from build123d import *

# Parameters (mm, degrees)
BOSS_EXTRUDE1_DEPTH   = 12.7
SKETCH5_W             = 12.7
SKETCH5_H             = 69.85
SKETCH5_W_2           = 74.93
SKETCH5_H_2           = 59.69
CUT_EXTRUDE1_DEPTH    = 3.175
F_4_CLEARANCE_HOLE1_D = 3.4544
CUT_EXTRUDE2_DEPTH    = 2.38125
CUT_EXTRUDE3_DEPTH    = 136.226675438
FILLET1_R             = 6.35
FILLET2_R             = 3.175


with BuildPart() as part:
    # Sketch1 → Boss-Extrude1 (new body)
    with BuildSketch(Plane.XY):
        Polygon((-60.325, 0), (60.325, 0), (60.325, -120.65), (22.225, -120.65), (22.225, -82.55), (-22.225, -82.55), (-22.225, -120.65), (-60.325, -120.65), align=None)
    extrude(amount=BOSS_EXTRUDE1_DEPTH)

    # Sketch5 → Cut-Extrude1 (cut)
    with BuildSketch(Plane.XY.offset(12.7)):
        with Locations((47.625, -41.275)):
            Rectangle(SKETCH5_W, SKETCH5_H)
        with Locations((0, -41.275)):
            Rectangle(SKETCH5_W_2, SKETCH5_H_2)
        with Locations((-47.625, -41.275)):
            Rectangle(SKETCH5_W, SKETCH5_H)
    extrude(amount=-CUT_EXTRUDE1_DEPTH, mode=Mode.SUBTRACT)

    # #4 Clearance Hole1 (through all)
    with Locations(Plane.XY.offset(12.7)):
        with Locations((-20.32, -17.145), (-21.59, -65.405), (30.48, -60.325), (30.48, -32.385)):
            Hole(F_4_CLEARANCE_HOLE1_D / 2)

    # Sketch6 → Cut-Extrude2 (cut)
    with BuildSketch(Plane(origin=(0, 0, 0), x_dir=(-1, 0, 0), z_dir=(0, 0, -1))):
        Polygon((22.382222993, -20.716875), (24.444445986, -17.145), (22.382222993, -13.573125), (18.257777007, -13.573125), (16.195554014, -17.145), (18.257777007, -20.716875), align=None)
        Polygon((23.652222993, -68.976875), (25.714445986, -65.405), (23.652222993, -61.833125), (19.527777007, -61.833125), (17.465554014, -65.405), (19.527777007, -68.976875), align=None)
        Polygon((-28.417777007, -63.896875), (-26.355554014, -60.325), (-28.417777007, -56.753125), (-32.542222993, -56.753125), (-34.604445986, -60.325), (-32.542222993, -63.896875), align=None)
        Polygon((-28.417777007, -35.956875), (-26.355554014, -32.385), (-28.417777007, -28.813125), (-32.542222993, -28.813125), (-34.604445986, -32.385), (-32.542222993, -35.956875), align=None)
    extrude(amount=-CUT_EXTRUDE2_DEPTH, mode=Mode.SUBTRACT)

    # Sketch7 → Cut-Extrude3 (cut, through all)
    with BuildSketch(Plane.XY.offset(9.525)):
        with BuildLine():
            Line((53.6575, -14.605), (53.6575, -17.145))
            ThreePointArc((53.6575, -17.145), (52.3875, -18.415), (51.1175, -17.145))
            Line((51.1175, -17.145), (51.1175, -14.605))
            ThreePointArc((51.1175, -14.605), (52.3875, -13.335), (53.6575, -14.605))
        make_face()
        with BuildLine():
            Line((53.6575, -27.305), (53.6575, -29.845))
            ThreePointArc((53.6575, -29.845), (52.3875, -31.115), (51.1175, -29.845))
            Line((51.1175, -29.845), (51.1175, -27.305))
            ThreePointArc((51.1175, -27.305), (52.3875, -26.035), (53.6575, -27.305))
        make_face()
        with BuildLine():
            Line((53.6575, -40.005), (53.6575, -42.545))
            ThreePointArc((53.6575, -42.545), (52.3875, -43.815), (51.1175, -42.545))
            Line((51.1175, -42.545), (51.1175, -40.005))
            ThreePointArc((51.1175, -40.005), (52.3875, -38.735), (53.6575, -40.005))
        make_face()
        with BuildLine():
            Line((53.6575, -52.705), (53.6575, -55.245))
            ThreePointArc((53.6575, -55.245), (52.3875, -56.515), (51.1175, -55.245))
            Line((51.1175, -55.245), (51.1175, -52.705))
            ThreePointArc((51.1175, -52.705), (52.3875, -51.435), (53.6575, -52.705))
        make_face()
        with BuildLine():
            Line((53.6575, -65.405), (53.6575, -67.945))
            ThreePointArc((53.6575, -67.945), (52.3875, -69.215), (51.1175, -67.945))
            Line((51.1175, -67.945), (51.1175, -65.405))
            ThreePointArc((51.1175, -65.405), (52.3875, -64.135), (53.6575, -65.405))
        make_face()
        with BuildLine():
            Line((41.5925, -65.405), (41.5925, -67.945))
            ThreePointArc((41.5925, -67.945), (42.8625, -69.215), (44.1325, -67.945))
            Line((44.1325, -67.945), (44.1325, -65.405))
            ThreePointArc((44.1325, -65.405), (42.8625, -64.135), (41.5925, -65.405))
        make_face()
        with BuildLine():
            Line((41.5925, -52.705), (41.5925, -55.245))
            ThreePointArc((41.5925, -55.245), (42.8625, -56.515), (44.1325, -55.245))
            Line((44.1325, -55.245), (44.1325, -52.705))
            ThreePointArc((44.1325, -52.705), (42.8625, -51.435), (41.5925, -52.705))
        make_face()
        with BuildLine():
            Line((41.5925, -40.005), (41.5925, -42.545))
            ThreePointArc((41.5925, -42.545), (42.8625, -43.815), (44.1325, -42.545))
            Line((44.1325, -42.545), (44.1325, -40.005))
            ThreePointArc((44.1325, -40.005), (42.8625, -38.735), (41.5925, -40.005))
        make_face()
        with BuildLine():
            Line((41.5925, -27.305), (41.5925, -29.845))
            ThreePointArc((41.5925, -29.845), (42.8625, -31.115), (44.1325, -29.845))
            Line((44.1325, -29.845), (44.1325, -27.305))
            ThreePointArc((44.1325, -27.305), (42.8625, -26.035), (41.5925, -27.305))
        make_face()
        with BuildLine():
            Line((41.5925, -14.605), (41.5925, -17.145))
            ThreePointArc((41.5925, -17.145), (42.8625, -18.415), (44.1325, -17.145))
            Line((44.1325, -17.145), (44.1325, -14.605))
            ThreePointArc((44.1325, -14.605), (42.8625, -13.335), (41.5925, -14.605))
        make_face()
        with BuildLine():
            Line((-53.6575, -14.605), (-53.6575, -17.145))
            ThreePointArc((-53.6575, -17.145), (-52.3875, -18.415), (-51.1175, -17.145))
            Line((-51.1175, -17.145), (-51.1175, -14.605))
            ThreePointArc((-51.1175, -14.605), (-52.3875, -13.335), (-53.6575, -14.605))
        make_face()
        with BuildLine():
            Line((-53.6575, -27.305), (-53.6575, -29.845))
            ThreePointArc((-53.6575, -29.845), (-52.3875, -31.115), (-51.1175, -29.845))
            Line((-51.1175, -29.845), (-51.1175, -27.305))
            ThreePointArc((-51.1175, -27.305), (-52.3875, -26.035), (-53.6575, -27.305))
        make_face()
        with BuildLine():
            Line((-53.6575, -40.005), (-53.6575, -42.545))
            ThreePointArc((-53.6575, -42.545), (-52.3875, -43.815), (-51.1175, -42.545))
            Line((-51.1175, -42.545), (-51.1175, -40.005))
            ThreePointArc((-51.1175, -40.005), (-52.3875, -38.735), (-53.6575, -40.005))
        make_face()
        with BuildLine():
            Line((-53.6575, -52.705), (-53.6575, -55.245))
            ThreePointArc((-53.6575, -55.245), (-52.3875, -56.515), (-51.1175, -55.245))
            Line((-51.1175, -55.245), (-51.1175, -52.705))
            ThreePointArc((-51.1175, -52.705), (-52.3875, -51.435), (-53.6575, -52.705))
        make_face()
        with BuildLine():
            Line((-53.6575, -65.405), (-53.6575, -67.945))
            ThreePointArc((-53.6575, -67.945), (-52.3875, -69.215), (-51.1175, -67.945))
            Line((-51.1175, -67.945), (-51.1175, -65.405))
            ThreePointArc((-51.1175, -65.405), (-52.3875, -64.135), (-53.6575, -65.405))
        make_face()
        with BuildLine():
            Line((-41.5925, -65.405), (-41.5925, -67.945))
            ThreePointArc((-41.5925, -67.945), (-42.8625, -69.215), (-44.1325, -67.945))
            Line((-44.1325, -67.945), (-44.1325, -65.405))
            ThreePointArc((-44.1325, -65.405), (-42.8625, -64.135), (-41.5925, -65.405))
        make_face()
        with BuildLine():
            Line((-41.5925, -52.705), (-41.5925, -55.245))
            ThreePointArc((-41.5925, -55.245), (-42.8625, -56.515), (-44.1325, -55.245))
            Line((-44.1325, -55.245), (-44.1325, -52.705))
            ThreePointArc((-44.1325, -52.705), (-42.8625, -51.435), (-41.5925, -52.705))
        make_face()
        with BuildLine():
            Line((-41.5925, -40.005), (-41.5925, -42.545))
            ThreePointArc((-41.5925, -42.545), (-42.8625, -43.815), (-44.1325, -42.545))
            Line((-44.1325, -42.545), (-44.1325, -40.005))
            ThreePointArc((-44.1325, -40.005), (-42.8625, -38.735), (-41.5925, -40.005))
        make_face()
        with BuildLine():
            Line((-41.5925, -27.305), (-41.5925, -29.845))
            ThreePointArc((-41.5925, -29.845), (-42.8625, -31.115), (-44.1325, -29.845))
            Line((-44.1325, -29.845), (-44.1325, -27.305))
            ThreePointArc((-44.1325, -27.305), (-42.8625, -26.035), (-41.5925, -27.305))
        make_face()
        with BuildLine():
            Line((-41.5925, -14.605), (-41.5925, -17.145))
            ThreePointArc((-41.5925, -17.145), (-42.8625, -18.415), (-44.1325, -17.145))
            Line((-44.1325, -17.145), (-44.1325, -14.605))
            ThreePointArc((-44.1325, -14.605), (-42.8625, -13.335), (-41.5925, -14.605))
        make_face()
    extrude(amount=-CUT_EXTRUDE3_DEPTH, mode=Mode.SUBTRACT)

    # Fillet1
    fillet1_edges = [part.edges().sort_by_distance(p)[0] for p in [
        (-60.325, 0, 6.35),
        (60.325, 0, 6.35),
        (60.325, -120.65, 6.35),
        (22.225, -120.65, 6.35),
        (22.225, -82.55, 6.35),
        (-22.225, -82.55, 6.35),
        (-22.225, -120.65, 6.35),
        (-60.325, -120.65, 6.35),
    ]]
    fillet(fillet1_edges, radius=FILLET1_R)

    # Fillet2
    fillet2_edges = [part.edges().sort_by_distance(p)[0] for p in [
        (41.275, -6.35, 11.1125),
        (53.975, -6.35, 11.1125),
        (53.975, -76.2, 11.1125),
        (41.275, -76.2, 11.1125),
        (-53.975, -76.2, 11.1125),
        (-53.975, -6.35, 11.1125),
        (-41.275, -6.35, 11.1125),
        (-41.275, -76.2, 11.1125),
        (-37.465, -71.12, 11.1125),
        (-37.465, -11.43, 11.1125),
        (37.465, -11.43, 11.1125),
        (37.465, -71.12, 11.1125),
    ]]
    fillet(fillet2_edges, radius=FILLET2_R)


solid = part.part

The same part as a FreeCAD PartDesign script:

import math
import FreeCAD as App
import Part
import Sketcher

V = App.Vector
Q = App.Units.Quantity


def edges_at(feature, points):
    """Names of the edges that pass closest to the given points."""
    edges = feature.Shape.Edges
    near = lambda p: min(range(len(edges)), key=lambda i: edges[i].distToShape(Part.Vertex(*p))[0])
    return sorted({f"Edge{near(p) + 1}" for p in points})

doc = App.newDocument("Part")
body = doc.addObject("PartDesign::Body", "Body")

sketch1 = body.newObject("Sketcher::SketchObject", "Sketch")
sketch1.AttachmentSupport = (doc.getObject("XY_Plane"), [""])
sketch1.MapMode = "FlatFace"
sketch1.addGeometry(Part.LineSegment(V(60, 0, 0), V(-60, 0, 0)), False)
sketch1.addGeometry(Part.LineSegment(V(-60, 0, 0), V(-60, -121, 0)), False)
sketch1.addGeometry(Part.LineSegment(V(-60, -121, 0), V(-22, -121, 0)), False)
sketch1.addGeometry(Part.LineSegment(V(-22, -121, 0), V(-22, -83, 0)), False)
sketch1.addGeometry(Part.LineSegment(V(-22, -83, 0), V(22, -83, 0)), False)
sketch1.addGeometry(Part.LineSegment(V(22, -83, 0), V(22, -121, 0)), False)
sketch1.addGeometry(Part.LineSegment(V(22, -121, 0), V(60, -121, 0)), False)
sketch1.addGeometry(Part.LineSegment(V(60, -121, 0), V(60, 0, 0)), False)
sketch1.addConstraint(Sketcher.Constraint("Coincident", 0, 2, 1, 1))
sketch1.addConstraint(Sketcher.Constraint("Coincident", 1, 2, 2, 1))
sketch1.addConstraint(Sketcher.Constraint("Coincident", 2, 2, 3, 1))
sketch1.addConstraint(Sketcher.Constraint("Coincident", 3, 2, 4, 1))
sketch1.addConstraint(Sketcher.Constraint("Coincident", 4, 2, 5, 1))
sketch1.addConstraint(Sketcher.Constraint("Coincident", 5, 2, 6, 1))
sketch1.addConstraint(Sketcher.Constraint("Coincident", 6, 2, 7, 1))
sketch1.addConstraint(Sketcher.Constraint("Coincident", 7, 2, 0, 1))
sketch1.addConstraint(Sketcher.Constraint("Horizontal", 0))
sketch1.addConstraint(Sketcher.Constraint("Vertical", 1))
sketch1.addConstraint(Sketcher.Constraint("Horizontal", 2))
sketch1.addConstraint(Sketcher.Constraint("Vertical", 3))
sketch1.addConstraint(Sketcher.Constraint("Horizontal", 4))
sketch1.addConstraint(Sketcher.Constraint("Vertical", 5))
sketch1.addConstraint(Sketcher.Constraint("Horizontal", 6))
sketch1.addConstraint(Sketcher.Constraint("Vertical", 7))
sketch1.addConstraint(Sketcher.Constraint("Symmetric", 0, 2, 7, 2, -1, 1))
sketch1.addConstraint(Sketcher.Constraint("Symmetric", 2, 2, 5, 2, -2))
sketch1.addConstraint(Sketcher.Constraint("Equal", 0, 1))
sketch1.addConstraint(Sketcher.Constraint("Equal", 6, 3))
sketch1.addConstraint(Sketcher.Constraint("DistanceX", 2, 1, 2, 2, Q("1.5 in")))
sketch1.addConstraint(Sketcher.Constraint("DistanceX", 0, 2, 0, 1, Q("4.75 in")))
pad1 = body.newObject("PartDesign::Pad", "Pad")
pad1.Profile = sketch1
pad1.Length = Q("0.5 in")

sketch2 = body.newObject("Sketcher::SketchObject", "Sketch001")
sketch2.AttachmentSupport = (doc.getObject("XY_Plane"), [""])
sketch2.MapMode = "FlatFace"
sketch2.AttachmentOffset = App.Placement(V(0, 0, 0.5 * 25.4), App.Rotation())
sketch2.addGeometry(Part.LineSegment(V(41, -6, 0), V(41, -76, 0)), False)
sketch2.addGeometry(Part.LineSegment(V(41, -76, 0), V(54, -76, 0)), False)
sketch2.addGeometry(Part.LineSegment(V(54, -76, 0), V(54, -6, 0)), False)
sketch2.addGeometry(Part.LineSegment(V(54, -6, 0), V(41, -6, 0)), False)
sketch2.addGeometry(Part.LineSegment(V(-37, -11, 0), V(-37, -71, 0)), False)
sketch2.addGeometry(Part.LineSegment(V(-37, -71, 0), V(37, -71, 0)), False)
sketch2.addGeometry(Part.LineSegment(V(37, -71, 0), V(37, -11, 0)), False)
sketch2.addGeometry(Part.LineSegment(V(37, -11, 0), V(-37, -11, 0)), False)
sketch2.addGeometry(Part.LineSegment(V(-54, -6, 0), V(-54, -76, 0)), False)
sketch2.addGeometry(Part.LineSegment(V(-54, -76, 0), V(-41, -76, 0)), False)
sketch2.addGeometry(Part.LineSegment(V(-41, -76, 0), V(-41, -6, 0)), False)
sketch2.addGeometry(Part.LineSegment(V(-41, -6, 0), V(-54, -6, 0)), False)
sketch2.addConstraint(Sketcher.Constraint("Coincident", 0, 2, 1, 1))
sketch2.addConstraint(Sketcher.Constraint("Coincident", 1, 2, 2, 1))
sketch2.addConstraint(Sketcher.Constraint("Coincident", 2, 2, 3, 1))
sketch2.addConstraint(Sketcher.Constraint("Coincident", 3, 2, 0, 1))
sketch2.addConstraint(Sketcher.Constraint("Coincident", 4, 2, 5, 1))
sketch2.addConstraint(Sketcher.Constraint("Coincident", 5, 2, 6, 1))
sketch2.addConstraint(Sketcher.Constraint("Coincident", 6, 2, 7, 1))
sketch2.addConstraint(Sketcher.Constraint("Coincident", 7, 2, 4, 1))
sketch2.addConstraint(Sketcher.Constraint("Coincident", 8, 2, 9, 1))
sketch2.addConstraint(Sketcher.Constraint("Coincident", 9, 2, 10, 1))
sketch2.addConstraint(Sketcher.Constraint("Coincident", 10, 2, 11, 1))
sketch2.addConstraint(Sketcher.Constraint("Coincident", 11, 2, 8, 1))
sketch2.addConstraint(Sketcher.Constraint("Vertical", 0))
sketch2.addConstraint(Sketcher.Constraint("Horizontal", 1))
sketch2.addConstraint(Sketcher.Constraint("Vertical", 2))
sketch2.addConstraint(Sketcher.Constraint("Horizontal", 3))
sketch2.addConstraint(Sketcher.Constraint("Vertical", 4))
sketch2.addConstraint(Sketcher.Constraint("Horizontal", 5))
sketch2.addConstraint(Sketcher.Constraint("Vertical", 6))
sketch2.addConstraint(Sketcher.Constraint("Horizontal", 7))
sketch2.addConstraint(Sketcher.Constraint("Vertical", 8))
sketch2.addConstraint(Sketcher.Constraint("Horizontal", 9))
sketch2.addConstraint(Sketcher.Constraint("Vertical", 10))
sketch2.addConstraint(Sketcher.Constraint("Horizontal", 11))
sketch2.addConstraint(Sketcher.Constraint("Symmetric", 1, 2, 8, 2, -2))
sketch2.addConstraint(Sketcher.Constraint("Symmetric", 3, 2, 10, 2, -2))
sketch2.addConstraint(Sketcher.Constraint("DistanceX", 1, 1, 1, 2, Q("0.5 in")))
sketch2.addConstraint(Sketcher.Constraint("DistanceY", 0, 2, -1, 1, Q("3 in")))
sketch2.addConstraint(Sketcher.Constraint("DistanceX", 5, 1, 5, 2, Q("2.95 in")))
sketch2.addConstraint(Sketcher.Constraint("DistanceY", 0, 2, 0, 1, Q("2.75 in")))
sketch2.addConstraint(Sketcher.Constraint("DistanceY", 4, 2, 4, 1, Q("2.35 in")))
sketch2.addConstraint(Sketcher.Constraint("DistanceY", 4, 2, -1, 1, Q("2.8 in")))
sketch2.addConstraint(Sketcher.Constraint("DistanceX", 4, 2, 0, 2, Q("3.1 in")))
sketch2.addConstraint(Sketcher.Constraint("DistanceX", 8, 2, 5, 2, Q("3.6 in")))
pocket1 = body.newObject("PartDesign::Pocket", "Pocket")
pocket1.Profile = sketch2
pocket1.Length = Q("0.125 in")

sketch3 = body.newObject("Sketcher::SketchObject", "Sketch002")
sketch3.AttachmentSupport = (doc.getObject("XY_Plane"), [""])
sketch3.MapMode = "FlatFace"
sketch3.AttachmentOffset = App.Placement(V(0, 0, 0.5 * 25.4), App.Rotation())
sketch3.addGeometry(Part.Circle(V(-20.3, -17.1, 0), V(0, 0, 1), 1.7), False)
sketch3.addGeometry(Part.Circle(V(-21.6, -65.4, 0), V(0, 0, 1), 1.7), False)
sketch3.addGeometry(Part.Circle(V(30.5, -60.3, 0), V(0, 0, 1), 1.7), False)
sketch3.addGeometry(Part.Circle(V(30.5, -32.4, 0), V(0, 0, 1), 1.7), False)
sketch3.addConstraint(Sketcher.Constraint("Equal", 0, 1))
sketch3.addConstraint(Sketcher.Constraint("Equal", 1, 2))
sketch3.addConstraint(Sketcher.Constraint("Equal", 2, 3))
sketch3.addConstraint(Sketcher.Constraint("Vertical", 2, 3, 3, 3))
sketch3.addConstraint(Sketcher.Constraint("Diameter", 0, Q("0.136 in")))
sketch3.addConstraint(Sketcher.Constraint("DistanceX", 0, 3, 2, 3, Q("2 in")))
sketch3.addConstraint(Sketcher.Constraint("DistanceX", 0, 3, -1, 1, Q("0.8 in")))
sketch3.addConstraint(Sketcher.Constraint("DistanceY", 1, 3, 0, 3, Q("1.9 in")))
sketch3.addConstraint(Sketcher.Constraint("DistanceY", 1, 3, 2, 3, Q("0.2 in")))
sketch3.addConstraint(Sketcher.Constraint("DistanceY", 2, 3, 3, 3, Q("1.1 in")))
sketch3.addConstraint(Sketcher.Constraint("DistanceX", 1, 3, -1, 1, Q("0.85 in")))
sketch3.addConstraint(Sketcher.Constraint("DistanceY", 0, 3, -1, 1, Q("0.675 in")))
doc.recompute()
hole = body.newObject("PartDesign::Hole", "Hole")
hole.Profile = sketch3
hole.ThreadType = "None"
hole.Diameter = Q("0.136 in")
hole.DepthType = "ThroughAll"

sketch4 = body.newObject("Sketcher::SketchObject", "Sketch003")
sketch4.AttachmentSupport = (doc.getObject("XY_Plane"), [""])
sketch4.MapMode = "FlatFace"
sketch4.addGeometry(Part.LineSegment(V(-22.4, -20.7, 0), V(-24.4, -17.1, 0)), False)
sketch4.addGeometry(Part.LineSegment(V(-24.4, -17.1, 0), V(-22.4, -13.6, 0)), False)
sketch4.addGeometry(Part.LineSegment(V(-22.4, -13.6, 0), V(-18.3, -13.6, 0)), False)
sketch4.addGeometry(Part.LineSegment(V(-18.3, -13.6, 0), V(-16.2, -17.1, 0)), False)
sketch4.addGeometry(Part.LineSegment(V(-16.2, -17.1, 0), V(-18.3, -20.7, 0)), False)
sketch4.addGeometry(Part.LineSegment(V(-18.3, -20.7, 0), V(-22.4, -20.7, 0)), False)
sketch4.addGeometry(Part.LineSegment(V(-23.7, -69, 0), V(-25.7, -65.4, 0)), False)
sketch4.addGeometry(Part.LineSegment(V(-25.7, -65.4, 0), V(-23.7, -61.8, 0)), False)
sketch4.addGeometry(Part.LineSegment(V(-23.7, -61.8, 0), V(-19.5, -61.8, 0)), False)
sketch4.addGeometry(Part.LineSegment(V(-19.5, -61.8, 0), V(-17.5, -65.4, 0)), False)
sketch4.addGeometry(Part.LineSegment(V(-17.5, -65.4, 0), V(-19.5, -69, 0)), False)
sketch4.addGeometry(Part.LineSegment(V(-19.5, -69, 0), V(-23.7, -69, 0)), False)
sketch4.addGeometry(Part.LineSegment(V(28.4, -63.9, 0), V(26.4, -60.3, 0)), False)
sketch4.addGeometry(Part.LineSegment(V(26.4, -60.3, 0), V(28.4, -56.8, 0)), False)
sketch4.addGeometry(Part.LineSegment(V(28.4, -56.8, 0), V(32.5, -56.8, 0)), False)
sketch4.addGeometry(Part.LineSegment(V(32.5, -56.8, 0), V(34.6, -60.3, 0)), False)
sketch4.addGeometry(Part.LineSegment(V(34.6, -60.3, 0), V(32.5, -63.9, 0)), False)
sketch4.addGeometry(Part.LineSegment(V(32.5, -63.9, 0), V(28.4, -63.9, 0)), False)
sketch4.addGeometry(Part.LineSegment(V(28.4, -36, 0), V(26.4, -32.4, 0)), False)
sketch4.addGeometry(Part.LineSegment(V(26.4, -32.4, 0), V(28.4, -28.8, 0)), False)
sketch4.addGeometry(Part.LineSegment(V(28.4, -28.8, 0), V(32.5, -28.8, 0)), False)
sketch4.addGeometry(Part.LineSegment(V(32.5, -28.8, 0), V(34.6, -32.4, 0)), False)
sketch4.addGeometry(Part.LineSegment(V(34.6, -32.4, 0), V(32.5, -36, 0)), False)
sketch4.addGeometry(Part.LineSegment(V(32.5, -36, 0), V(28.4, -36, 0)), False)
sketch4.addConstraint(Sketcher.Constraint("Coincident", 0, 2, 1, 1))
sketch4.addConstraint(Sketcher.Constraint("Coincident", 1, 2, 2, 1))
sketch4.addConstraint(Sketcher.Constraint("Coincident", 2, 2, 3, 1))
sketch4.addConstraint(Sketcher.Constraint("Coincident", 3, 2, 4, 1))
sketch4.addConstraint(Sketcher.Constraint("Coincident", 4, 2, 5, 1))
sketch4.addConstraint(Sketcher.Constraint("Coincident", 5, 2, 0, 1))
sketch4.addConstraint(Sketcher.Constraint("Coincident", 6, 2, 7, 1))
sketch4.addConstraint(Sketcher.Constraint("Coincident", 7, 2, 8, 1))
sketch4.addConstraint(Sketcher.Constraint("Coincident", 8, 2, 9, 1))
sketch4.addConstraint(Sketcher.Constraint("Coincident", 9, 2, 10, 1))
sketch4.addConstraint(Sketcher.Constraint("Coincident", 10, 2, 11, 1))
sketch4.addConstraint(Sketcher.Constraint("Coincident", 11, 2, 6, 1))
sketch4.addConstraint(Sketcher.Constraint("Coincident", 12, 2, 13, 1))
sketch4.addConstraint(Sketcher.Constraint("Coincident", 13, 2, 14, 1))
sketch4.addConstraint(Sketcher.Constraint("Coincident", 14, 2, 15, 1))
sketch4.addConstraint(Sketcher.Constraint("Coincident", 15, 2, 16, 1))
sketch4.addConstraint(Sketcher.Constraint("Coincident", 16, 2, 17, 1))
sketch4.addConstraint(Sketcher.Constraint("Coincident", 17, 2, 12, 1))
sketch4.addConstraint(Sketcher.Constraint("Coincident", 18, 2, 19, 1))
sketch4.addConstraint(Sketcher.Constraint("Coincident", 19, 2, 20, 1))
sketch4.addConstraint(Sketcher.Constraint("Coincident", 20, 2, 21, 1))
sketch4.addConstraint(Sketcher.Constraint("Coincident", 21, 2, 22, 1))
sketch4.addConstraint(Sketcher.Constraint("Coincident", 22, 2, 23, 1))
sketch4.addConstraint(Sketcher.Constraint("Coincident", 23, 2, 18, 1))
sketch4.addConstraint(Sketcher.Constraint("Horizontal", 2))
sketch4.addConstraint(Sketcher.Constraint("Horizontal", 5))
sketch4.addConstraint(Sketcher.Constraint("Horizontal", 8))
sketch4.addConstraint(Sketcher.Constraint("Horizontal", 11))
sketch4.addConstraint(Sketcher.Constraint("Horizontal", 14))
sketch4.addConstraint(Sketcher.Constraint("Horizontal", 17))
sketch4.addConstraint(Sketcher.Constraint("Horizontal", 20))
sketch4.addConstraint(Sketcher.Constraint("Horizontal", 23))
sketch4.addConstraint(Sketcher.Constraint("Parallel", 0, 3))
sketch4.addConstraint(Sketcher.Constraint("Parallel", 1, 4))
sketch4.addConstraint(Sketcher.Constraint("Parallel", 3, 6))
sketch4.addConstraint(Sketcher.Constraint("Parallel", 4, 7))
sketch4.addConstraint(Sketcher.Constraint("Parallel", 6, 9))
sketch4.addConstraint(Sketcher.Constraint("Parallel", 7, 10))
sketch4.addConstraint(Sketcher.Constraint("Parallel", 9, 12))
sketch4.addConstraint(Sketcher.Constraint("Parallel", 10, 13))
sketch4.addConstraint(Sketcher.Constraint("Parallel", 12, 15))
sketch4.addConstraint(Sketcher.Constraint("Parallel", 13, 16))
sketch4.addConstraint(Sketcher.Constraint("Parallel", 15, 18))
sketch4.addConstraint(Sketcher.Constraint("Parallel", 16, 19))
sketch4.addConstraint(Sketcher.Constraint("Parallel", 18, 21))
sketch4.addConstraint(Sketcher.Constraint("Parallel", 19, 22))
sketch4.addConstraint(Sketcher.Constraint("Horizontal", 0, 2, 3, 2))
sketch4.addConstraint(Sketcher.Constraint("Horizontal", 6, 2, 9, 2))
sketch4.addConstraint(Sketcher.Constraint("Horizontal", 12, 2, 15, 2))
sketch4.addConstraint(Sketcher.Constraint("Horizontal", 18, 2, 21, 2))
sketch4.addConstraint(Sketcher.Constraint("Vertical", 2, 2, 4, 2))
sketch4.addConstraint(Sketcher.Constraint("Vertical", 1, 2, 5, 2))
sketch4.addConstraint(Sketcher.Constraint("Vertical", 8, 2, 10, 2))
sketch4.addConstraint(Sketcher.Constraint("Vertical", 14, 2, 16, 2))
sketch4.addConstraint(Sketcher.Constraint("Vertical", 12, 2, 18, 2))
sketch4.addConstraint(Sketcher.Constraint("Vertical", 17, 2, 19, 2))
sketch4.addConstraint(Sketcher.Constraint("Vertical", 16, 2, 20, 2))
sketch4.addConstraint(Sketcher.Constraint("Vertical", 20, 2, 22, 2))
sketch4.addConstraint(Sketcher.Constraint("Equal", 5, 8))
sketch4.addConstraint(Sketcher.Constraint("Equal", 11, 14))
sketch4.addConstraint(Sketcher.Constraint("Equal", 4, 6))
sketch4.addConstraint(Sketcher.Constraint("Equal", 10, 12))
sketch4.addConstraint(Sketcher.Constraint("Angle", 0, Q("120 deg")))
sketch4.addConstraint(Sketcher.Constraint("DistanceY", 6, 2, 0, 2, Q("1.9 in")))
sketch4.addConstraint(Sketcher.Constraint("DistanceY", 9, 2, 12, 2, Q("0.2 in")))
sketch4.addConstraint(Sketcher.Constraint("DistanceY", 12, 2, 18, 2, Q("1.1 in")))
sketch4.addConstraint(Sketcher.Constraint("DistanceX", 6, 2, 0, 2, Q("0.05 in")))
sketch4.addConstraint(Sketcher.Constraint("DistanceX", 7, 2, 13, 2, Q("2.05 in")))
sketch4.addConstraint(Sketcher.Constraint("DistanceY", 0, 2, -1, 1, Q("0.675 in")))
sketch4.addConstraint(Sketcher.Constraint("DistanceY", 13, 2, -1, 1, Q("2.234375 in")))
sketch4.addConstraint(Sketcher.Constraint("DistanceX", 2, 1, 2, 2, 4.124446))
sketch4.addConstraint(Sketcher.Constraint("DistanceX", 0, 2, -1, 1, 24.444446))
pocket2 = body.newObject("PartDesign::Pocket", "Pocket001")
pocket2.Profile = sketch4
pocket2.Length = Q("0.09375 in")
pocket2.Reversed = True

sketch5 = body.newObject("Sketcher::SketchObject", "Sketch004")
sketch5.AttachmentSupport = (doc.getObject("XY_Plane"), [""])
sketch5.MapMode = "FlatFace"
sketch5.AttachmentOffset = App.Placement(V(0, 0, 0.375 * 25.4), App.Rotation())
sketch5.addGeometry(Part.LineSegment(V(53.7, -17.1, 0), V(53.7, -14.6, 0)), False)
sketch5.addGeometry(Part.ArcOfCircle(Part.Circle(V(52.4, -14.6, 0), V(0, 0, 1), 1.3), math.radians(0), math.radians(180)), False)
sketch5.addGeometry(Part.LineSegment(V(51.1, -14.6, 0), V(51.1, -17.1, 0)), False)
sketch5.addGeometry(Part.ArcOfCircle(Part.Circle(V(52.4, -17.1, 0), V(0, 0, 1), 1.3), math.radians(180), math.radians(360)), False)
sketch5.addGeometry(Part.LineSegment(V(53.7, -29.8, 0), V(53.7, -27.3, 0)), False)
sketch5.addGeometry(Part.ArcOfCircle(Part.Circle(V(52.4, -27.3, 0), V(0, 0, 1), 1.3), math.radians(0), math.radians(180)), False)
sketch5.addGeometry(Part.LineSegment(V(51.1, -27.3, 0), V(51.1, -29.8, 0)), False)
sketch5.addGeometry(Part.ArcOfCircle(Part.Circle(V(52.4, -29.8, 0), V(0, 0, 1), 1.3), math.radians(180), math.radians(360)), False)
sketch5.addGeometry(Part.LineSegment(V(53.7, -42.5, 0), V(53.7, -40, 0)), False)
sketch5.addGeometry(Part.ArcOfCircle(Part.Circle(V(52.4, -40, 0), V(0, 0, 1), 1.3), math.radians(0), math.radians(180)), False)
sketch5.addGeometry(Part.LineSegment(V(51.1, -40, 0), V(51.1, -42.5, 0)), False)
sketch5.addGeometry(Part.ArcOfCircle(Part.Circle(V(52.4, -42.5, 0), V(0, 0, 1), 1.3), math.radians(180), math.radians(360)), False)
sketch5.addGeometry(Part.LineSegment(V(53.7, -55.2, 0), V(53.7, -52.7, 0)), False)
sketch5.addGeometry(Part.ArcOfCircle(Part.Circle(V(52.4, -52.7, 0), V(0, 0, 1), 1.3), math.radians(0), math.radians(180)), False)
sketch5.addGeometry(Part.LineSegment(V(51.1, -52.7, 0), V(51.1, -55.2, 0)), False)
sketch5.addGeometry(Part.ArcOfCircle(Part.Circle(V(52.4, -55.2, 0), V(0, 0, 1), 1.3), math.radians(180), math.radians(360)), False)
sketch5.addGeometry(Part.LineSegment(V(53.7, -67.9, 0), V(53.7, -65.4, 0)), False)
sketch5.addGeometry(Part.ArcOfCircle(Part.Circle(V(52.4, -65.4, 0), V(0, 0, 1), 1.3), math.radians(0), math.radians(180)), False)
sketch5.addGeometry(Part.LineSegment(V(51.1, -65.4, 0), V(51.1, -67.9, 0)), False)
sketch5.addGeometry(Part.ArcOfCircle(Part.Circle(V(52.4, -67.9, 0), V(0, 0, 1), 1.3), math.radians(180), math.radians(360)), False)
sketch5.addGeometry(Part.LineSegment(V(41.6, -65.4, 0), V(41.6, -67.9, 0)), False)
sketch5.addGeometry(Part.ArcOfCircle(Part.Circle(V(42.9, -67.9, 0), V(0, 0, 1), 1.3), math.radians(180), math.radians(360)), False)
sketch5.addGeometry(Part.LineSegment(V(44.1, -67.9, 0), V(44.1, -65.4, 0)), False)
sketch5.addGeometry(Part.ArcOfCircle(Part.Circle(V(42.9, -65.4, 0), V(0, 0, 1), 1.3), math.radians(0), math.radians(180)), False)
sketch5.addGeometry(Part.LineSegment(V(41.6, -52.7, 0), V(41.6, -55.2, 0)), False)
sketch5.addGeometry(Part.ArcOfCircle(Part.Circle(V(42.9, -55.2, 0), V(0, 0, 1), 1.3), math.radians(180), math.radians(360)), False)
sketch5.addGeometry(Part.LineSegment(V(44.1, -55.2, 0), V(44.1, -52.7, 0)), False)
sketch5.addGeometry(Part.ArcOfCircle(Part.Circle(V(42.9, -52.7, 0), V(0, 0, 1), 1.3), math.radians(0), math.radians(180)), False)
sketch5.addGeometry(Part.LineSegment(V(41.6, -40, 0), V(41.6, -42.5, 0)), False)
sketch5.addGeometry(Part.ArcOfCircle(Part.Circle(V(42.9, -42.5, 0), V(0, 0, 1), 1.3), math.radians(180), math.radians(360)), False)
sketch5.addGeometry(Part.LineSegment(V(44.1, -42.5, 0), V(44.1, -40, 0)), False)
sketch5.addGeometry(Part.ArcOfCircle(Part.Circle(V(42.9, -40, 0), V(0, 0, 1), 1.3), math.radians(0), math.radians(180)), False)
sketch5.addGeometry(Part.LineSegment(V(41.6, -27.3, 0), V(41.6, -29.8, 0)), False)
sketch5.addGeometry(Part.ArcOfCircle(Part.Circle(V(42.9, -29.8, 0), V(0, 0, 1), 1.3), math.radians(180), math.radians(360)), False)
sketch5.addGeometry(Part.LineSegment(V(44.1, -29.8, 0), V(44.1, -27.3, 0)), False)
sketch5.addGeometry(Part.ArcOfCircle(Part.Circle(V(42.9, -27.3, 0), V(0, 0, 1), 1.3), math.radians(0), math.radians(180)), False)
sketch5.addGeometry(Part.LineSegment(V(41.6, -14.6, 0), V(41.6, -17.1, 0)), False)
sketch5.addGeometry(Part.ArcOfCircle(Part.Circle(V(42.9, -17.1, 0), V(0, 0, 1), 1.3), math.radians(180), math.radians(360)), False)
sketch5.addGeometry(Part.LineSegment(V(44.1, -17.1, 0), V(44.1, -14.6, 0)), False)
sketch5.addGeometry(Part.ArcOfCircle(Part.Circle(V(42.9, -14.6, 0), V(0, 0, 1), 1.3), math.radians(0), math.radians(180)), False)
sketch5.addGeometry(Part.LineSegment(V(-53.7, -14.6, 0), V(-53.7, -17.1, 0)), False)
sketch5.addGeometry(Part.ArcOfCircle(Part.Circle(V(-52.4, -17.1, 0), V(0, 0, 1), 1.3), math.radians(180), math.radians(360)), False)
sketch5.addGeometry(Part.LineSegment(V(-51.1, -17.1, 0), V(-51.1, -14.6, 0)), False)
sketch5.addGeometry(Part.ArcOfCircle(Part.Circle(V(-52.4, -14.6, 0), V(0, 0, 1), 1.3), math.radians(0), math.radians(180)), False)
sketch5.addGeometry(Part.LineSegment(V(-53.7, -27.3, 0), V(-53.7, -29.8, 0)), False)
sketch5.addGeometry(Part.ArcOfCircle(Part.Circle(V(-52.4, -29.8, 0), V(0, 0, 1), 1.3), math.radians(180), math.radians(360)), False)
sketch5.addGeometry(Part.LineSegment(V(-51.1, -29.8, 0), V(-51.1, -27.3, 0)), False)
sketch5.addGeometry(Part.ArcOfCircle(Part.Circle(V(-52.4, -27.3, 0), V(0, 0, 1), 1.3), math.radians(0), math.radians(180)), False)
sketch5.addGeometry(Part.LineSegment(V(-53.7, -40, 0), V(-53.7, -42.5, 0)), False)
sketch5.addGeometry(Part.ArcOfCircle(Part.Circle(V(-52.4, -42.5, 0), V(0, 0, 1), 1.3), math.radians(180), math.radians(360)), False)
sketch5.addGeometry(Part.LineSegment(V(-51.1, -42.5, 0), V(-51.1, -40, 0)), False)
sketch5.addGeometry(Part.ArcOfCircle(Part.Circle(V(-52.4, -40, 0), V(0, 0, 1), 1.3), math.radians(0), math.radians(180)), False)
sketch5.addGeometry(Part.LineSegment(V(-53.7, -52.7, 0), V(-53.7, -55.2, 0)), False)
sketch5.addGeometry(Part.ArcOfCircle(Part.Circle(V(-52.4, -55.2, 0), V(0, 0, 1), 1.3), math.radians(180), math.radians(360)), False)
sketch5.addGeometry(Part.LineSegment(V(-51.1, -55.2, 0), V(-51.1, -52.7, 0)), False)
sketch5.addGeometry(Part.ArcOfCircle(Part.Circle(V(-52.4, -52.7, 0), V(0, 0, 1), 1.3), math.radians(0), math.radians(180)), False)
sketch5.addGeometry(Part.LineSegment(V(-53.7, -65.4, 0), V(-53.7, -67.9, 0)), False)
sketch5.addGeometry(Part.ArcOfCircle(Part.Circle(V(-52.4, -67.9, 0), V(0, 0, 1), 1.3), math.radians(180), math.radians(360)), False)
sketch5.addGeometry(Part.LineSegment(V(-51.1, -67.9, 0), V(-51.1, -65.4, 0)), False)
sketch5.addGeometry(Part.ArcOfCircle(Part.Circle(V(-52.4, -65.4, 0), V(0, 0, 1), 1.3), math.radians(0), math.radians(180)), False)
sketch5.addGeometry(Part.LineSegment(V(-41.6, -67.9, 0), V(-41.6, -65.4, 0)), False)
sketch5.addGeometry(Part.ArcOfCircle(Part.Circle(V(-42.9, -65.4, 0), V(0, 0, 1), 1.3), math.radians(0), math.radians(180)), False)
sketch5.addGeometry(Part.LineSegment(V(-44.1, -65.4, 0), V(-44.1, -67.9, 0)), False)
sketch5.addGeometry(Part.ArcOfCircle(Part.Circle(V(-42.9, -67.9, 0), V(0, 0, 1), 1.3), math.radians(180), math.radians(360)), False)
sketch5.addGeometry(Part.LineSegment(V(-41.6, -55.2, 0), V(-41.6, -52.7, 0)), False)
sketch5.addGeometry(Part.ArcOfCircle(Part.Circle(V(-42.9, -52.7, 0), V(0, 0, 1), 1.3), math.radians(0), math.radians(180)), False)
sketch5.addGeometry(Part.LineSegment(V(-44.1, -52.7, 0), V(-44.1, -55.2, 0)), False)
sketch5.addGeometry(Part.ArcOfCircle(Part.Circle(V(-42.9, -55.2, 0), V(0, 0, 1), 1.3), math.radians(180), math.radians(360)), False)
sketch5.addGeometry(Part.LineSegment(V(-41.6, -42.5, 0), V(-41.6, -40, 0)), False)
sketch5.addGeometry(Part.ArcOfCircle(Part.Circle(V(-42.9, -40, 0), V(0, 0, 1), 1.3), math.radians(0), math.radians(180)), False)
sketch5.addGeometry(Part.LineSegment(V(-44.1, -40, 0), V(-44.1, -42.5, 0)), False)
sketch5.addGeometry(Part.ArcOfCircle(Part.Circle(V(-42.9, -42.5, 0), V(0, 0, 1), 1.3), math.radians(180), math.radians(360)), False)
sketch5.addGeometry(Part.LineSegment(V(-41.6, -29.8, 0), V(-41.6, -27.3, 0)), False)
sketch5.addGeometry(Part.ArcOfCircle(Part.Circle(V(-42.9, -27.3, 0), V(0, 0, 1), 1.3), math.radians(0), math.radians(180)), False)
sketch5.addGeometry(Part.LineSegment(V(-44.1, -27.3, 0), V(-44.1, -29.8, 0)), False)
sketch5.addGeometry(Part.ArcOfCircle(Part.Circle(V(-42.9, -29.8, 0), V(0, 0, 1), 1.3), math.radians(180), math.radians(360)), False)
sketch5.addGeometry(Part.LineSegment(V(-41.6, -17.1, 0), V(-41.6, -14.6, 0)), False)
sketch5.addGeometry(Part.ArcOfCircle(Part.Circle(V(-42.9, -14.6, 0), V(0, 0, 1), 1.3), math.radians(0), math.radians(180)), False)
sketch5.addGeometry(Part.LineSegment(V(-44.1, -14.6, 0), V(-44.1, -17.1, 0)), False)
sketch5.addGeometry(Part.ArcOfCircle(Part.Circle(V(-42.9, -17.1, 0), V(0, 0, 1), 1.3), math.radians(180), math.radians(360)), False)
sketch5.addConstraint(Sketcher.Constraint("Tangent", 0, 2, 1, 1))
sketch5.addConstraint(Sketcher.Constraint("Tangent", 1, 2, 2, 1))
sketch5.addConstraint(Sketcher.Constraint("Tangent", 2, 2, 3, 1))
sketch5.addConstraint(Sketcher.Constraint("Tangent", 3, 2, 0, 1))
sketch5.addConstraint(Sketcher.Constraint("Tangent", 4, 2, 5, 1))
sketch5.addConstraint(Sketcher.Constraint("Tangent", 5, 2, 6, 1))
sketch5.addConstraint(Sketcher.Constraint("Tangent", 6, 2, 7, 1))
sketch5.addConstraint(Sketcher.Constraint("Tangent", 7, 2, 4, 1))
sketch5.addConstraint(Sketcher.Constraint("Tangent", 8, 2, 9, 1))
sketch5.addConstraint(Sketcher.Constraint("Tangent", 9, 2, 10, 1))
sketch5.addConstraint(Sketcher.Constraint("Tangent", 10, 2, 11, 1))
sketch5.addConstraint(Sketcher.Constraint("Tangent", 11, 2, 8, 1))
sketch5.addConstraint(Sketcher.Constraint("Tangent", 12, 2, 13, 1))
sketch5.addConstraint(Sketcher.Constraint("Tangent", 13, 2, 14, 1))
sketch5.addConstraint(Sketcher.Constraint("Tangent", 14, 2, 15, 1))
sketch5.addConstraint(Sketcher.Constraint("Tangent", 15, 2, 12, 1))
sketch5.addConstraint(Sketcher.Constraint("Tangent", 16, 2, 17, 1))
sketch5.addConstraint(Sketcher.Constraint("Tangent", 17, 2, 18, 1))
sketch5.addConstraint(Sketcher.Constraint("Tangent", 18, 2, 19, 1))
sketch5.addConstraint(Sketcher.Constraint("Tangent", 19, 2, 16, 1))
sketch5.addConstraint(Sketcher.Constraint("Tangent", 20, 2, 21, 1))
sketch5.addConstraint(Sketcher.Constraint("Tangent", 21, 2, 22, 1))
sketch5.addConstraint(Sketcher.Constraint("Tangent", 22, 2, 23, 1))
sketch5.addConstraint(Sketcher.Constraint("Tangent", 23, 2, 20, 1))
sketch5.addConstraint(Sketcher.Constraint("Tangent", 24, 2, 25, 1))
sketch5.addConstraint(Sketcher.Constraint("Tangent", 25, 2, 26, 1))
sketch5.addConstraint(Sketcher.Constraint("Tangent", 26, 2, 27, 1))
sketch5.addConstraint(Sketcher.Constraint("Tangent", 27, 2, 24, 1))
sketch5.addConstraint(Sketcher.Constraint("Tangent", 28, 2, 29, 1))
sketch5.addConstraint(Sketcher.Constraint("Tangent", 29, 2, 30, 1))
sketch5.addConstraint(Sketcher.Constraint("Tangent", 30, 2, 31, 1))
sketch5.addConstraint(Sketcher.Constraint("Tangent", 31, 2, 28, 1))
sketch5.addConstraint(Sketcher.Constraint("Tangent", 32, 2, 33, 1))
sketch5.addConstraint(Sketcher.Constraint("Tangent", 33, 2, 34, 1))
sketch5.addConstraint(Sketcher.Constraint("Tangent", 34, 2, 35, 1))
sketch5.addConstraint(Sketcher.Constraint("Tangent", 35, 2, 32, 1))
sketch5.addConstraint(Sketcher.Constraint("Tangent", 36, 2, 37, 1))
sketch5.addConstraint(Sketcher.Constraint("Tangent", 37, 2, 38, 1))
sketch5.addConstraint(Sketcher.Constraint("Tangent", 38, 2, 39, 1))
sketch5.addConstraint(Sketcher.Constraint("Tangent", 39, 2, 36, 1))
sketch5.addConstraint(Sketcher.Constraint("Tangent", 40, 2, 41, 1))
sketch5.addConstraint(Sketcher.Constraint("Tangent", 41, 2, 42, 1))
sketch5.addConstraint(Sketcher.Constraint("Tangent", 42, 2, 43, 1))
sketch5.addConstraint(Sketcher.Constraint("Tangent", 43, 2, 40, 1))
sketch5.addConstraint(Sketcher.Constraint("Tangent", 44, 2, 45, 1))
sketch5.addConstraint(Sketcher.Constraint("Tangent", 45, 2, 46, 1))
sketch5.addConstraint(Sketcher.Constraint("Tangent", 46, 2, 47, 1))
sketch5.addConstraint(Sketcher.Constraint("Tangent", 47, 2, 44, 1))
sketch5.addConstraint(Sketcher.Constraint("Tangent", 48, 2, 49, 1))
sketch5.addConstraint(Sketcher.Constraint("Tangent", 49, 2, 50, 1))
sketch5.addConstraint(Sketcher.Constraint("Tangent", 50, 2, 51, 1))
sketch5.addConstraint(Sketcher.Constraint("Tangent", 51, 2, 48, 1))
sketch5.addConstraint(Sketcher.Constraint("Tangent", 52, 2, 53, 1))
sketch5.addConstraint(Sketcher.Constraint("Tangent", 53, 2, 54, 1))
sketch5.addConstraint(Sketcher.Constraint("Tangent", 54, 2, 55, 1))
sketch5.addConstraint(Sketcher.Constraint("Tangent", 55, 2, 52, 1))
sketch5.addConstraint(Sketcher.Constraint("Tangent", 56, 2, 57, 1))
sketch5.addConstraint(Sketcher.Constraint("Tangent", 57, 2, 58, 1))
sketch5.addConstraint(Sketcher.Constraint("Tangent", 58, 2, 59, 1))
sketch5.addConstraint(Sketcher.Constraint("Tangent", 59, 2, 56, 1))
sketch5.addConstraint(Sketcher.Constraint("Tangent", 60, 2, 61, 1))
sketch5.addConstraint(Sketcher.Constraint("Tangent", 61, 2, 62, 1))
sketch5.addConstraint(Sketcher.Constraint("Tangent", 62, 2, 63, 1))
sketch5.addConstraint(Sketcher.Constraint("Tangent", 63, 2, 60, 1))
sketch5.addConstraint(Sketcher.Constraint("Tangent", 64, 2, 65, 1))
sketch5.addConstraint(Sketcher.Constraint("Tangent", 65, 2, 66, 1))
sketch5.addConstraint(Sketcher.Constraint("Tangent", 66, 2, 67, 1))
sketch5.addConstraint(Sketcher.Constraint("Tangent", 67, 2, 64, 1))
sketch5.addConstraint(Sketcher.Constraint("Tangent", 68, 2, 69, 1))
sketch5.addConstraint(Sketcher.Constraint("Tangent", 69, 2, 70, 1))
sketch5.addConstraint(Sketcher.Constraint("Tangent", 70, 2, 71, 1))
sketch5.addConstraint(Sketcher.Constraint("Tangent", 71, 2, 68, 1))
sketch5.addConstraint(Sketcher.Constraint("Tangent", 72, 2, 73, 1))
sketch5.addConstraint(Sketcher.Constraint("Tangent", 73, 2, 74, 1))
sketch5.addConstraint(Sketcher.Constraint("Tangent", 74, 2, 75, 1))
sketch5.addConstraint(Sketcher.Constraint("Tangent", 75, 2, 72, 1))
sketch5.addConstraint(Sketcher.Constraint("Tangent", 76, 2, 77, 1))
sketch5.addConstraint(Sketcher.Constraint("Tangent", 77, 2, 78, 1))
sketch5.addConstraint(Sketcher.Constraint("Tangent", 78, 2, 79, 1))
sketch5.addConstraint(Sketcher.Constraint("Tangent", 79, 2, 76, 1))
sketch5.addConstraint(Sketcher.Constraint("Vertical", 0))
sketch5.addConstraint(Sketcher.Constraint("Vertical", 2))
sketch5.addConstraint(Sketcher.Constraint("Vertical", 4))
sketch5.addConstraint(Sketcher.Constraint("Vertical", 6))
sketch5.addConstraint(Sketcher.Constraint("Vertical", 8))
sketch5.addConstraint(Sketcher.Constraint("Vertical", 10))
sketch5.addConstraint(Sketcher.Constraint("Vertical", 12))
sketch5.addConstraint(Sketcher.Constraint("Vertical", 14))
sketch5.addConstraint(Sketcher.Constraint("Vertical", 16))
sketch5.addConstraint(Sketcher.Constraint("Vertical", 18))
sketch5.addConstraint(Sketcher.Constraint("Vertical", 20))
sketch5.addConstraint(Sketcher.Constraint("Vertical", 22))
sketch5.addConstraint(Sketcher.Constraint("Vertical", 24))
sketch5.addConstraint(Sketcher.Constraint("Vertical", 26))
sketch5.addConstraint(Sketcher.Constraint("Vertical", 28))
sketch5.addConstraint(Sketcher.Constraint("Vertical", 30))
sketch5.addConstraint(Sketcher.Constraint("Vertical", 32))
sketch5.addConstraint(Sketcher.Constraint("Vertical", 34))
sketch5.addConstraint(Sketcher.Constraint("Vertical", 36))
sketch5.addConstraint(Sketcher.Constraint("Vertical", 38))
sketch5.addConstraint(Sketcher.Constraint("Vertical", 40))
sketch5.addConstraint(Sketcher.Constraint("Vertical", 42))
sketch5.addConstraint(Sketcher.Constraint("Vertical", 44))
sketch5.addConstraint(Sketcher.Constraint("Vertical", 46))
sketch5.addConstraint(Sketcher.Constraint("Vertical", 48))
sketch5.addConstraint(Sketcher.Constraint("Vertical", 50))
sketch5.addConstraint(Sketcher.Constraint("Vertical", 52))
sketch5.addConstraint(Sketcher.Constraint("Vertical", 54))
sketch5.addConstraint(Sketcher.Constraint("Vertical", 56))
sketch5.addConstraint(Sketcher.Constraint("Vertical", 58))
sketch5.addConstraint(Sketcher.Constraint("Vertical", 60))
sketch5.addConstraint(Sketcher.Constraint("Vertical", 62))
sketch5.addConstraint(Sketcher.Constraint("Vertical", 64))
sketch5.addConstraint(Sketcher.Constraint("Vertical", 66))
sketch5.addConstraint(Sketcher.Constraint("Vertical", 68))
sketch5.addConstraint(Sketcher.Constraint("Vertical", 70))
sketch5.addConstraint(Sketcher.Constraint("Vertical", 72))
sketch5.addConstraint(Sketcher.Constraint("Vertical", 74))
sketch5.addConstraint(Sketcher.Constraint("Vertical", 76))
sketch5.addConstraint(Sketcher.Constraint("Vertical", 78))
sketch5.addConstraint(Sketcher.Constraint("Equal", 3, 5))
sketch5.addConstraint(Sketcher.Constraint("Equal", 7, 9))
sketch5.addConstraint(Sketcher.Constraint("Equal", 11, 13))
sketch5.addConstraint(Sketcher.Constraint("Equal", 15, 17))
sketch5.addConstraint(Sketcher.Constraint("Equal", 19, 21))
sketch5.addConstraint(Sketcher.Constraint("Equal", 23, 25))
sketch5.addConstraint(Sketcher.Constraint("Equal", 27, 29))
sketch5.addConstraint(Sketcher.Constraint("Equal", 31, 33))
sketch5.addConstraint(Sketcher.Constraint("Equal", 35, 37))
sketch5.addConstraint(Sketcher.Constraint("Equal", 39, 41))
sketch5.addConstraint(Sketcher.Constraint("Equal", 43, 45))
sketch5.addConstraint(Sketcher.Constraint("Equal", 47, 49))
sketch5.addConstraint(Sketcher.Constraint("Equal", 51, 53))
sketch5.addConstraint(Sketcher.Constraint("Equal", 55, 57))
sketch5.addConstraint(Sketcher.Constraint("Equal", 59, 61))
sketch5.addConstraint(Sketcher.Constraint("Equal", 63, 65))
sketch5.addConstraint(Sketcher.Constraint("Equal", 67, 69))
sketch5.addConstraint(Sketcher.Constraint("Equal", 71, 73))
sketch5.addConstraint(Sketcher.Constraint("Equal", 75, 77))
sketch5.addConstraint(Sketcher.Constraint("Symmetric", 3, 3, 41, 3, -2))
sketch5.addConstraint(Sketcher.Constraint("Symmetric", 7, 3, 45, 3, -2))
sketch5.addConstraint(Sketcher.Constraint("Symmetric", 11, 3, 49, 3, -2))
sketch5.addConstraint(Sketcher.Constraint("Symmetric", 15, 3, 53, 3, -2))
sketch5.addConstraint(Sketcher.Constraint("Symmetric", 19, 3, 57, 3, -2))
sketch5.addConstraint(Sketcher.Constraint("Symmetric", 23, 3, 61, 3, -2))
sketch5.addConstraint(Sketcher.Constraint("Symmetric", 27, 3, 65, 3, -2))
sketch5.addConstraint(Sketcher.Constraint("Symmetric", 31, 3, 69, 3, -2))
sketch5.addConstraint(Sketcher.Constraint("Symmetric", 35, 3, 73, 3, -2))
sketch5.addConstraint(Sketcher.Constraint("Symmetric", 39, 3, 77, 3, -2))
sketch5.addConstraint(Sketcher.Constraint("Horizontal", 19, 3, 21, 3))
sketch5.addConstraint(Sketcher.Constraint("Horizontal", 17, 3, 23, 3))
sketch5.addConstraint(Sketcher.Constraint("Horizontal", 15, 3, 25, 3))
sketch5.addConstraint(Sketcher.Constraint("Horizontal", 13, 3, 27, 3))
sketch5.addConstraint(Sketcher.Constraint("Horizontal", 11, 3, 29, 3))
sketch5.addConstraint(Sketcher.Constraint("Horizontal", 9, 3, 31, 3))
sketch5.addConstraint(Sketcher.Constraint("Horizontal", 7, 3, 33, 3))
sketch5.addConstraint(Sketcher.Constraint("Horizontal", 5, 3, 35, 3))
sketch5.addConstraint(Sketcher.Constraint("Horizontal", 3, 3, 37, 3))
sketch5.addConstraint(Sketcher.Constraint("Horizontal", 1, 3, 39, 3))
sketch5.addConstraint(Sketcher.Constraint("Horizontal", 39, 3, 43, 3))
sketch5.addConstraint(Sketcher.Constraint("Horizontal", 35, 3, 47, 3))
sketch5.addConstraint(Sketcher.Constraint("Horizontal", 31, 3, 51, 3))
sketch5.addConstraint(Sketcher.Constraint("Horizontal", 27, 3, 55, 3))
sketch5.addConstraint(Sketcher.Constraint("Horizontal", 23, 3, 59, 3))
sketch5.addConstraint(Sketcher.Constraint("Horizontal", 57, 3, 63, 3))
sketch5.addConstraint(Sketcher.Constraint("Horizontal", 53, 3, 67, 3))
sketch5.addConstraint(Sketcher.Constraint("Horizontal", 49, 3, 71, 3))
sketch5.addConstraint(Sketcher.Constraint("Horizontal", 45, 3, 75, 3))
sketch5.addConstraint(Sketcher.Constraint("Horizontal", 41, 3, 79, 3))
sketch5.addConstraint(Sketcher.Constraint("Vertical", 3, 3, 5, 3))
sketch5.addConstraint(Sketcher.Constraint("Vertical", 7, 3, 9, 3))
sketch5.addConstraint(Sketcher.Constraint("Vertical", 11, 3, 13, 3))
sketch5.addConstraint(Sketcher.Constraint("Vertical", 15, 3, 17, 3))
sketch5.addConstraint(Sketcher.Constraint("Vertical", 23, 3, 25, 3))
sketch5.addConstraint(Sketcher.Constraint("Vertical", 27, 3, 29, 3))
sketch5.addConstraint(Sketcher.Constraint("Vertical", 31, 3, 33, 3))
sketch5.addConstraint(Sketcher.Constraint("Vertical", 35, 3, 37, 3))
sketch5.addConstraint(Sketcher.Constraint("Equal", 2, 4))
sketch5.addConstraint(Sketcher.Constraint("Equal", 6, 8))
sketch5.addConstraint(Sketcher.Constraint("Equal", 10, 12))
sketch5.addConstraint(Sketcher.Constraint("Equal", 14, 16))
sketch5.addConstraint(Sketcher.Constraint("Radius", 1, Q("0.05 in")))
sketch5.addConstraint(Sketcher.Constraint("DistanceY", 0, 1, 0, 2, Q("0.1 in")))
sketch5.addConstraint(Sketcher.Constraint("DistanceX", -1, 1, 1, 3, Q("2.0625 in")))
sketch5.addConstraint(Sketcher.Constraint("DistanceY", 1, 3, -1, 1, Q("0.575 in")))
sketch5.addConstraint(Sketcher.Constraint("DistanceY", 5, 3, -1, 1, Q("1.075 in")))
sketch5.addConstraint(Sketcher.Constraint("DistanceY", 9, 3, -1, 1, Q("1.575 in")))
sketch5.addConstraint(Sketcher.Constraint("DistanceY", 13, 3, -1, 1, Q("2.075 in")))
sketch5.addConstraint(Sketcher.Constraint("DistanceY", 17, 3, -1, 1, Q("2.575 in")))
sketch5.addConstraint(Sketcher.Constraint("DistanceX", -1, 1, 21, 3, Q("1.6875 in")))
pocket3 = body.newObject("PartDesign::Pocket", "Pocket002")
pocket3.Profile = sketch5
pocket3.Type = "ThroughAll"
doc.recompute()

fillet = body.newObject("PartDesign::Fillet", "Fillet")
fillet.Base = (pocket3, edges_at(pocket3, [
    (-60.325, 0, 6.35),
    (60.325, 0, 6.35),
    (60.325, -120.65, 6.35),
    (22.225, -120.65, 6.35),
    (22.225, -82.55, 6.35),
    (-22.225, -82.55, 6.35),
    (-22.225, -120.65, 6.35),
    (-60.325, -120.65, 6.35),
]))
fillet.Radius = Q("0.25 in")
doc.recompute()

fillet2 = body.newObject("PartDesign::Fillet", "Fillet001")
fillet2.Base = (fillet, edges_at(fillet, [
    (41.275, -6.35, 11.113),
    (53.975, -6.35, 11.113),
    (53.975, -76.2, 11.113),
    (41.275, -76.2, 11.113),
    (-53.975, -76.2, 11.113),
    (-53.975, -6.35, 11.113),
    (-41.275, -6.35, 11.113),
    (-41.275, -76.2, 11.113),
    (-37.465, -71.12, 11.113),
    (-37.465, -11.43, 11.113),
    (37.465, -11.43, 11.113),
    (37.465, -71.12, 11.113),
]))
fillet2.Radius = Q("0.125 in")

doc.recompute()
